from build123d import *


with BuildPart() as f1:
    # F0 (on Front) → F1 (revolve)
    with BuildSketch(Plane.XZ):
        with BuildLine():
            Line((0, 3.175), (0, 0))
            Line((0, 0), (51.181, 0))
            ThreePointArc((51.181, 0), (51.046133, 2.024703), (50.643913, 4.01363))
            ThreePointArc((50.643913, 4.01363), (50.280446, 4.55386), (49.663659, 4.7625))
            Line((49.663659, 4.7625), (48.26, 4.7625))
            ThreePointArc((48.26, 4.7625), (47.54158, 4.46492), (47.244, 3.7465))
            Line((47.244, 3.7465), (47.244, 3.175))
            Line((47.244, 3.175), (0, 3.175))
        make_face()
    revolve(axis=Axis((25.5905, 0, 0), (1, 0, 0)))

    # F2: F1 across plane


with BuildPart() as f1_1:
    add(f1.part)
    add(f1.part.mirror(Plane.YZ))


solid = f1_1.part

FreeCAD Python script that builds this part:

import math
import FreeCAD as App
import Part
import Sketcher

V = App.Vector
Q = App.Units.Quantity

doc = App.newDocument("Part")
params = doc.addObject("Spreadsheet::Sheet", "Params")
for row, (alias, value) in enumerate([
    ("sketch1_radius", "0.04 in"),
    ("sketch1_width", "1.86 in"),
    ("sketch1_width2", "2.015 in"),
    ("sketch1_height", "0.125 in"),
    ("revolution_angle", "360 deg"),
], start=1):
    params.set(f"A{row}", alias)
    params.set(f"B{row}", "=" + value)
    params.setAlias(f"B{row}", alias)

body = doc.addObject("PartDesign::Body", "Body")

# Sketch on XZ plane
sketch1 = body.newObject("Sketcher::SketchObject", "Sketch")
sketch1.AttachmentSupport = (doc.getObject("XZ_Plane"), [""])
sketch1.MapMode = "FlatFace"
sketch1.addGeometry(Part.LineSegment(V(0, 3.2, 0), V(0, 0, 0)), False)
sketch1.addGeometry(Part.LineSegment(V(0, 0, 0), V(51.2, 0, 0)), False)
sketch1.addGeometry(Part.ArcOfCircle(Part.Circle(V(35.9, 0, 0), V(0, 0, 1), 15.3), math.radians(0), math.radians(15.24)), False)
sketch1.addGeometry(Part.ArcOfCircle(Part.Circle(V(49.7, 3.7, 0), V(0, 0, 1), 1), math.radians(15), math.radians(90)), False)
sketch1.addGeometry(Part.LineSegment(V(49.7, 4.8, 0), V(48.3, 4.8, 0)), False)
sketch1.addGeometry(Part.ArcOfCircle(Part.Circle(V(48.3, 3.7, 0), V(0, 0, 1), 1), math.radians(90), math.radians(180)), False)
sketch1.addGeometry(Part.LineSegment(V(47.2, 3.7, 0), V(47.2, 3.2, 0)), False)
sketch1.addGeometry(Part.LineSegment(V(47.2, 3.2, 0), V(0, 3.2, 0)), False)
sketch1.addConstraint(Sketcher.Constraint("Coincident", 0, 2, 1, 1))
sketch1.addConstraint(Sketcher.Constraint("Coincident", 1, 2, 2, 1))
sketch1.addConstraint(Sketcher.Constraint("Tangent", 2, 2, 3, 1))
sketch1.addConstraint(Sketcher.Constraint("Tangent", 3, 2, 4, 1))
sketch1.addConstraint(Sketcher.Constraint("Tangent", 4, 2, 5, 1))
sketch1.addConstraint(Sketcher.Constraint("Tangent", 5, 2, 6, 1))
sketch1.addConstraint(Sketcher.Constraint("Coincident", 6, 2, 7, 1))
sketch1.addConstraint(Sketcher.Constraint("Coincident", 7, 2, 0, 1))
sketch1.addConstraint(Sketcher.Constraint("Vertical", 0))
sketch1.addConstraint(Sketcher.Constraint("Horizontal", 1))
sketch1.addConstraint(Sketcher.Constraint("Horizontal", 4))
sketch1.addConstraint(Sketcher.Constraint("Vertical", 6))
sketch1.addConstraint(Sketcher.Constraint("Horizontal", 7))
sketch1.addConstraint(Sketcher.Constraint("Coincident", 0, 2, -1, 1))
sketch1.addConstraint(Sketcher.Constraint("Equal", 3, 5))
sketch1.addConstraint(Sketcher.Constraint("Radius", 3, Q("0.04 in")))
sketch1.addConstraint(Sketcher.Constraint("DistanceX", 7, 2, 7, 1, Q("1.86 in")))
sketch1.addConstraint(Sketcher.Constraint("DistanceX", 1, 1, 1, 2, Q("2.015 in")))
sketch1.addConstraint(Sketcher.Constraint("DistanceY", 0, 2, 0, 1, Q("0.125 in")))
sketch1.addConstraint(Sketcher.Constraint("DistanceY", 6, 2, 6, 1, Q("0.0225 in")))
sketch1.addConstraint(Sketcher.Constraint("Radius", 2, 15.265335))
sketch1.addConstraint(Sketcher.Constraint("DistanceX", 4, 2, 4, 1, 1.403659))
sketch1.setExpression("Constraints[15]", "Params.sketch1_radius")
sketch1.setExpression("Constraints[16]", "Params.sketch1_width")
sketch1.setExpression("Constraints[17]", "Params.sketch1_width2")
sketch1.setExpression("Constraints[18]", "Params.sketch1_height")
revolution = body.newObject("PartDesign::Revolution", "Revolution")
revolution.Profile = sketch1
revolution.ReferenceAxis = (sketch1, ["H_Axis"])
revolution.setExpression("Angle", "Params.revolution_angle")
body2 = doc.addObject("PartDesign::Body", "Body001")
doc.recompute()

body2.BaseFeature = body
doc.recompute()

mirroring = doc.addObject("Part::Mirroring", "Mirroring")
mirroring.Source = body
mirroring.Base = V(0, 0, 0)
mirroring.Normal = V(1, 0, 0)
body3 = doc.addObject("PartDesign::Body", "Body002")
body3.BaseFeature = mirroring
boolean = body2.newObject("PartDesign::Boolean", "Boolean")
boolean.Type = "Fuse"
boolean.addObjects([body3])
doc.recompute()
mirroring.Visibility = False

doc.recompute()
